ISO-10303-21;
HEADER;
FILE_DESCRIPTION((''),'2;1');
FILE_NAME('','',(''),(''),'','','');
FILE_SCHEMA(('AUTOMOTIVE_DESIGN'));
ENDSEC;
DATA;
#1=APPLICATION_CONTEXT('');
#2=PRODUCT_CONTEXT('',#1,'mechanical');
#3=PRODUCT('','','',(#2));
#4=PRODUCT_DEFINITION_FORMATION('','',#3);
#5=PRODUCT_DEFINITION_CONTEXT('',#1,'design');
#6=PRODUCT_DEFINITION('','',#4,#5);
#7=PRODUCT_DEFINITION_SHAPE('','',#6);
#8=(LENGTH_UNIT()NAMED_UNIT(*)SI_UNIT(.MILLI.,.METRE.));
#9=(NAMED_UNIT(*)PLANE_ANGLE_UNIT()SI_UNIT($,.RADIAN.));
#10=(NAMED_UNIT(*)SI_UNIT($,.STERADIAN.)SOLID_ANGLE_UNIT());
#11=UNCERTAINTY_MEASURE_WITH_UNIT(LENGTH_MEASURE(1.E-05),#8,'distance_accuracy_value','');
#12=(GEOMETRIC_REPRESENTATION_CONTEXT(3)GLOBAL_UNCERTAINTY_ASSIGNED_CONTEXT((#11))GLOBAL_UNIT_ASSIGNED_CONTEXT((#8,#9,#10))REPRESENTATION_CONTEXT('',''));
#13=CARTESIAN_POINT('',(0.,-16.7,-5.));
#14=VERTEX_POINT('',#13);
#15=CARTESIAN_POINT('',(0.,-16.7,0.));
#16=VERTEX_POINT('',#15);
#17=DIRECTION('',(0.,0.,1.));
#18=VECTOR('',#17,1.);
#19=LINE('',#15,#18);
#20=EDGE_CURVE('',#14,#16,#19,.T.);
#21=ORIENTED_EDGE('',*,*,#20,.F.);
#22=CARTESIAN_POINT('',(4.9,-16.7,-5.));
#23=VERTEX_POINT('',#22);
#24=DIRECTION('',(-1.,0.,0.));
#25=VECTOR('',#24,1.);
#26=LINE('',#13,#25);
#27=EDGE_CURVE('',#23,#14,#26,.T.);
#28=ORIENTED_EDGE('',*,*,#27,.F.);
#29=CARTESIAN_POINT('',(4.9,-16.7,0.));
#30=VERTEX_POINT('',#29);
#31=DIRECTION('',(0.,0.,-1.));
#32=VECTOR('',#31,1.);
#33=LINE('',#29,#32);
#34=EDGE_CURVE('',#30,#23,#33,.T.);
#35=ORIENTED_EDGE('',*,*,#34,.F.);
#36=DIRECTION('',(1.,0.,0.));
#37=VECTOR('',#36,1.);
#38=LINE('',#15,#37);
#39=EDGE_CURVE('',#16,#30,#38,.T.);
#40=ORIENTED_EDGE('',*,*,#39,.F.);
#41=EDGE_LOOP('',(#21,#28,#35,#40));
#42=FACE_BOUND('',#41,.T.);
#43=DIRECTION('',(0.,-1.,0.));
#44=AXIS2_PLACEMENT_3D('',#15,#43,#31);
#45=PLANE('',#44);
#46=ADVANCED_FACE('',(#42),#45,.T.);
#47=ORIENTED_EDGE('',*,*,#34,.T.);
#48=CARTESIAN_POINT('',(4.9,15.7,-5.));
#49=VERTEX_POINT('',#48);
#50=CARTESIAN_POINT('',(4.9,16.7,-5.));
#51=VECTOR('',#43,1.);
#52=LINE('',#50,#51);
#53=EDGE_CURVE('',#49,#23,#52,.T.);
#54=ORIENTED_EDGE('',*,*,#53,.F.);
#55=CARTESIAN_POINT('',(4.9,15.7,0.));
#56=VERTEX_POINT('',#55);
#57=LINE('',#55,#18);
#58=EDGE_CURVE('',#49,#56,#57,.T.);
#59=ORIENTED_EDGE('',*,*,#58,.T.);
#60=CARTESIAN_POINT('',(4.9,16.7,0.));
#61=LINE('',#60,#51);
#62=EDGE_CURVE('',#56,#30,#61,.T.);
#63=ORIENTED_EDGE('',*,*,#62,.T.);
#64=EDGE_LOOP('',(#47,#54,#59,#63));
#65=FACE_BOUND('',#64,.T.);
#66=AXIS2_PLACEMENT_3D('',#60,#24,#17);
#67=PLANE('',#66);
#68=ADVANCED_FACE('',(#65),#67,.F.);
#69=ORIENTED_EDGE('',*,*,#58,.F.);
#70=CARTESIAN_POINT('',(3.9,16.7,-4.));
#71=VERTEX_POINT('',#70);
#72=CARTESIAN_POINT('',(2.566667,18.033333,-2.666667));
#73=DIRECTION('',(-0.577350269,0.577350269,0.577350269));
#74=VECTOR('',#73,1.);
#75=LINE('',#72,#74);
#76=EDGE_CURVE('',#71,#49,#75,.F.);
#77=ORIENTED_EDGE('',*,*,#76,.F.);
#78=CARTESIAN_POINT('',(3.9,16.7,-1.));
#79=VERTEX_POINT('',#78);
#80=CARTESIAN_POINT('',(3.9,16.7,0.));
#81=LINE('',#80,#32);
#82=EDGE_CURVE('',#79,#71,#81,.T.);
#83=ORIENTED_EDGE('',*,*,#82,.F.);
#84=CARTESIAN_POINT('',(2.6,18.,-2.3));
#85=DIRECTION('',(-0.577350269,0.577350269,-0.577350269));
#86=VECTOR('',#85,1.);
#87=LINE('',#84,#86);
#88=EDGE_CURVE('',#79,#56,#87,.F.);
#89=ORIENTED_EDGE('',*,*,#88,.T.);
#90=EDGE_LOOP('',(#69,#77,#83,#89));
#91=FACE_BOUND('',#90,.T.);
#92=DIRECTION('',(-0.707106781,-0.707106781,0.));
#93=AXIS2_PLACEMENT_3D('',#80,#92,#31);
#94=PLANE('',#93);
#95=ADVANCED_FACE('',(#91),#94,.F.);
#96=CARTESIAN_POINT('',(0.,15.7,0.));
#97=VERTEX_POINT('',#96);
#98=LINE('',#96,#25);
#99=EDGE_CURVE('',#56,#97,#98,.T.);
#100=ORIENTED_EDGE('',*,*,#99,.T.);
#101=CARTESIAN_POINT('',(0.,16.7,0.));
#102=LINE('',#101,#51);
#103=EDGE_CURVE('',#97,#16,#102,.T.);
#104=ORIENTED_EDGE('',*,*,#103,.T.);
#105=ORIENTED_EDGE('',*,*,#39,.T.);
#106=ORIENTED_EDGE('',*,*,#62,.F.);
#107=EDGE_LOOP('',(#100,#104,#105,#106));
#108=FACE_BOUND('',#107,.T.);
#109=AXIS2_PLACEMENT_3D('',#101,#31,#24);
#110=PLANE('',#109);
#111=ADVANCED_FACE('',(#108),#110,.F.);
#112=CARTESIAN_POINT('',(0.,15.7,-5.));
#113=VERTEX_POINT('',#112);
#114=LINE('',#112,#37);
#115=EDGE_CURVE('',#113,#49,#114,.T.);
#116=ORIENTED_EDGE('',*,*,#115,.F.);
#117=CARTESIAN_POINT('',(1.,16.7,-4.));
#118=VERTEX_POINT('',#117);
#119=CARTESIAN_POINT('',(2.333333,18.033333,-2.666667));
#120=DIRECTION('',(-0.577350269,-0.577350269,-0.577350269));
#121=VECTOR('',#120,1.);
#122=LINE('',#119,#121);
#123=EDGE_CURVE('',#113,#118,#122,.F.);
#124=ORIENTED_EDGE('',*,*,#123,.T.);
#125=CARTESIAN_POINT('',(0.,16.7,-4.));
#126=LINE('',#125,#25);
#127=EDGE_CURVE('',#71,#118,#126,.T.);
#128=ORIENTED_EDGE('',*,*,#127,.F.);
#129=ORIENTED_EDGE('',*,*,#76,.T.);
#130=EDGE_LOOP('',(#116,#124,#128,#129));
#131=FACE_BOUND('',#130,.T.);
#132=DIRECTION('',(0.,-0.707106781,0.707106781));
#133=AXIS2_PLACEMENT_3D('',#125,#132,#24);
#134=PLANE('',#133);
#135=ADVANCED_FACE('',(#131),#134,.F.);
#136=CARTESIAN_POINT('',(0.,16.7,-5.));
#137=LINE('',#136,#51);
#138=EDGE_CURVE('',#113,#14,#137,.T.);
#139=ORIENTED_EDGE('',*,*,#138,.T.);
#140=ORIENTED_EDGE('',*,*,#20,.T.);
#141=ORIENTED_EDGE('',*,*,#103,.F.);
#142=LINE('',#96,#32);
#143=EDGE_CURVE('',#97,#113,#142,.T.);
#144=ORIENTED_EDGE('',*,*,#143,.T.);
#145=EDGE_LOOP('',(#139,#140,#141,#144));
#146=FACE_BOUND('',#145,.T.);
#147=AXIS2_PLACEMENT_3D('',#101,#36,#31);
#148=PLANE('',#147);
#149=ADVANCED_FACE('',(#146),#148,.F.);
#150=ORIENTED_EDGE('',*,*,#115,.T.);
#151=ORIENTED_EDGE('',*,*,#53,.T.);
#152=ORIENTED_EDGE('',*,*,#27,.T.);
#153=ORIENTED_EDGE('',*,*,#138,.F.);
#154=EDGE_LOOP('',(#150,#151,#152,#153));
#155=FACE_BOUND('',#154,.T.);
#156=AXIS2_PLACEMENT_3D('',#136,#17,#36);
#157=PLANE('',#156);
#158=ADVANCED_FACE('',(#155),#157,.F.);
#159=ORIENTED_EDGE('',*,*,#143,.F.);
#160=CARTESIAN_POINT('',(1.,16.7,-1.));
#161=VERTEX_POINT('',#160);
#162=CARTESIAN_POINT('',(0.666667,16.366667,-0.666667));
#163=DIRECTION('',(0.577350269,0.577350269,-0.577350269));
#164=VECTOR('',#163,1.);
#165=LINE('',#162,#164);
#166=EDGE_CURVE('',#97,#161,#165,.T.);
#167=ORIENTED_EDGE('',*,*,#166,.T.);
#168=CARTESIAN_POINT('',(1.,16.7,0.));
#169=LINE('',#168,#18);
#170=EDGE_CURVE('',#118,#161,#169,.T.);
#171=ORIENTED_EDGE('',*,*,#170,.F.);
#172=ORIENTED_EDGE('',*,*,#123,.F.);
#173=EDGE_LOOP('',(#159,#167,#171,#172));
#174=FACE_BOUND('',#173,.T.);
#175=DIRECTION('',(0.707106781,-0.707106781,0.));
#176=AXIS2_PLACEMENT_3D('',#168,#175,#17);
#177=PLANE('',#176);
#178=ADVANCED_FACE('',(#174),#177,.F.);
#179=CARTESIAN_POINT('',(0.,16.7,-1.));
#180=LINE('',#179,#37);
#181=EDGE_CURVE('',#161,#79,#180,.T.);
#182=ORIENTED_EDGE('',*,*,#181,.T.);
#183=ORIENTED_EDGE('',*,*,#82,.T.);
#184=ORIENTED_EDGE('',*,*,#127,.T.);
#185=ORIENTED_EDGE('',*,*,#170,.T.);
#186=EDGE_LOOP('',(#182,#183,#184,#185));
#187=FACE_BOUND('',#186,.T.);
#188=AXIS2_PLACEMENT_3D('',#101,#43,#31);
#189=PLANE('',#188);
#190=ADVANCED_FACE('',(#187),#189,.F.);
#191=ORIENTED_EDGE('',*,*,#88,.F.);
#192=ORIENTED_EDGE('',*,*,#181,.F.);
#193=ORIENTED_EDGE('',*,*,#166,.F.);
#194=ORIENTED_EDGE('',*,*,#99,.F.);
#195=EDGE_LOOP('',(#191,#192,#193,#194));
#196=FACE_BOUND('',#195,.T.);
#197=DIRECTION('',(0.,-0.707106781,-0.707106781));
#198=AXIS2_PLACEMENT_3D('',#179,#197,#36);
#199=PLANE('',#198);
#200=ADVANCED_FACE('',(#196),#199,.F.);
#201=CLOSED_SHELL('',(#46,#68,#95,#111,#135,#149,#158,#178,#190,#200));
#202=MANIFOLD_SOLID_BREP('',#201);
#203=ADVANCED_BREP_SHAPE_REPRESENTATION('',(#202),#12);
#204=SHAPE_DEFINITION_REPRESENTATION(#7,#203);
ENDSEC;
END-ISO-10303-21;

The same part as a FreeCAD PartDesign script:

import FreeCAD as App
import Part
import Sketcher

V = App.Vector


def edges_at(feature, points):
    """Names of the edges that pass closest to the given points."""
    edges = feature.Shape.Edges
    near = lambda p: min(range(len(edges)), key=lambda i: edges[i].distToShape(Part.Vertex(*p))[0])
    return sorted({f"Edge{near(p) + 1}" for p in points})

doc = App.newDocument("Part")
body = doc.addObject("PartDesign::Body", "Body")

sketch1 = body.newObject("Sketcher::SketchObject", "Sketch")
sketch1.AttachmentSupport = (doc.getObject("XZ_Plane"), [""])
sketch1.MapMode = "FlatFace"
sketch1.addGeometry(Part.LineSegment(V(0, -5, 0), V(0, 0, 0)), False)
sketch1.addGeometry(Part.LineSegment(V(0, 0, 0), V(4.9, 0, 0)), False)
sketch1.addGeometry(Part.LineSegment(V(4.9, 0, 0), V(4.9, -5, 0)), False)
sketch1.addGeometry(Part.LineSegment(V(4.9, -5, 0), V(0, -5, 0)), False)
sketch1.addConstraint(Sketcher.Constraint("Coincident", 0, 2, 1, 1))
sketch1.addConstraint(Sketcher.Constraint("Coincident", 1, 2, 2, 1))
sketch1.addConstraint(Sketcher.Constraint("Coincident", 2, 2, 3, 1))
sketch1.addConstraint(Sketcher.Constraint("Coincident", 3, 2, 0, 1))
sketch1.addConstraint(Sketcher.Constraint("Vertical", 0))
sketch1.addConstraint(Sketcher.Constraint("Horizontal", 1))
sketch1.addConstraint(Sketcher.Constraint("Vertical", 2))
sketch1.addConstraint(Sketcher.Constraint("Horizontal", 3))
sketch1.addConstraint(Sketcher.Constraint("Coincident", 0, 2, -1, 1))
sketch1.addConstraint(Sketcher.Constraint("DistanceY", 0, 1, 0, 2, 5.0))
sketch1.addConstraint(Sketcher.Constraint("DistanceX", 1, 1, 1, 2, 4.9))
pad1 = body.newObject("PartDesign::Pad", "Pad")
pad1.Profile = sketch1
pad1.Length = 33.4
pad1.Midplane = True
doc.recompute()

chamfer = body.newObject("PartDesign::Chamfer", "Chamfer")
chamfer.Base = (pad1, edges_at(pad1, [
    (4.9, 16.7, -2.5),
    (2.45, 16.7, -5),
    (0, 16.7, -2.5),
    (2.45, 16.7, 0),
]))
chamfer.Size = 1

doc.recompute()
